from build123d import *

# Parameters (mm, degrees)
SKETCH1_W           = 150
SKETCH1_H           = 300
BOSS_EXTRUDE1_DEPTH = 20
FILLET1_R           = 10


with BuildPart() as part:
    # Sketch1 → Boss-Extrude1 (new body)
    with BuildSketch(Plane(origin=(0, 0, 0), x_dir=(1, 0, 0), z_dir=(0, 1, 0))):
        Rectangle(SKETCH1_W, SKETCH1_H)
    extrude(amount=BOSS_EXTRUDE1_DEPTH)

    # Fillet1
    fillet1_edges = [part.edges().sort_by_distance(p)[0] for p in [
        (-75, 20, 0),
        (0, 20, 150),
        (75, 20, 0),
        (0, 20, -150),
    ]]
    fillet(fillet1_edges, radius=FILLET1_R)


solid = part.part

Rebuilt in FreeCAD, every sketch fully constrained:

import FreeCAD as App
import Part
import Sketcher
Q = App.Units.Quantity


def edges_at(feature, points):
    """Names of the edges that pass closest to the given points."""
    edges = feature.Shape.Edges
    near = lambda p: min(range(len(edges)), key=lambda i: edges[i].distToShape(Part.Vertex(*p))[0])
    return sorted({f"Edge{near(p) + 1}" for p in points})

doc = App.newDocument("Part")
body = doc.addObject("PartDesign::Body", "Body")

sketch1 = body.newObject("Sketcher::SketchObject", "Sketch")
sketch1.AttachmentSupport = (doc.getObject("XZ_Plane"), [""])
sketch1.MapMode = "FlatFace"
sketch1.addGeometry([
    Part.LineSegment(App.Vector(-75, -150, 0), App.Vector(-75, 150, 0)),
    Part.LineSegment(App.Vector(-75, 150, 0), App.Vector(75, 150, 0)),
    Part.LineSegment(App.Vector(75, 150, 0), App.Vector(75, -150, 0)),
    Part.LineSegment(App.Vector(75, -150, 0), App.Vector(-75, -150, 0)),
], False)
sketch1.addConstraint([
    Sketcher.Constraint("Coincident", 0, 2, 1, 1),
    Sketcher.Constraint("Coincident", 1, 2, 2, 1),
    Sketcher.Constraint("Coincident", 2, 2, 3, 1),
    Sketcher.Constraint("Coincident", 3, 2, 0, 1),
    Sketcher.Constraint("Vertical", 0),
    Sketcher.Constraint("Horizontal", 1),
    Sketcher.Constraint("Vertical", 2),
    Sketcher.Constraint("Horizontal", 3),
    Sketcher.Constraint("Symmetric", 0, 2, 2, 2, -1, 1),
    Sketcher.Constraint("DistanceX", 1, 1, 1, 2, Q("150 mm")),
    Sketcher.Constraint("DistanceY", 0, 1, 0, 2, Q("300 mm")),
])
pad1 = body.newObject("PartDesign::Pad", "Pad")
pad1.Profile = sketch1
pad1.Length = 20
pad1.Reversed = True
doc.recompute()

fillet = body.newObject("PartDesign::Fillet", "Fillet")
fillet.Base = (pad1, edges_at(pad1, [
    (-75, 20, 0),
    (0, 20, 150),
    (75, 20, 0),
    (0, 20, -150),
]))
fillet.Radius = 10

doc.recompute()
